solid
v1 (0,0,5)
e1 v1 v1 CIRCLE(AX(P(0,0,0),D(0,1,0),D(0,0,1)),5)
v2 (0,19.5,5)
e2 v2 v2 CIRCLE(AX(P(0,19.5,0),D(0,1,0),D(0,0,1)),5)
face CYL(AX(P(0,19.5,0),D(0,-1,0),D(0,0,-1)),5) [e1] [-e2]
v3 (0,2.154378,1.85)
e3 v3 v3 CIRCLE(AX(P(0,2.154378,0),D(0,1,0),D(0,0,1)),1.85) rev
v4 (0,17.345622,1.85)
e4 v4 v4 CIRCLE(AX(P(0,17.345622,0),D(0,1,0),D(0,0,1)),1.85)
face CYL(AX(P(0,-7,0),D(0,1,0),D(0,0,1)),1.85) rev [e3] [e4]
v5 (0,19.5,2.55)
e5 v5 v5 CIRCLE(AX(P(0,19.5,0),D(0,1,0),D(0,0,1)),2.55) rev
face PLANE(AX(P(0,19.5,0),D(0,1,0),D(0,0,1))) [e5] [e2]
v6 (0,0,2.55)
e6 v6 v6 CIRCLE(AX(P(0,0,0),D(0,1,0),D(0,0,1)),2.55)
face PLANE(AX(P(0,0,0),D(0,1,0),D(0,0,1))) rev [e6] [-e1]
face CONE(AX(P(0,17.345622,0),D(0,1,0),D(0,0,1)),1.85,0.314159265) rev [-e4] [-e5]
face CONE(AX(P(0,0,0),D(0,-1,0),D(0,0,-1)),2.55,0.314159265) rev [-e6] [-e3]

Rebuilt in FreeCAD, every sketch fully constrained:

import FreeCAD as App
import Part
import Sketcher

V = App.Vector
Q = App.Units.Quantity


def edges_at(feature, points):
    """Names of the edges that pass closest to the given points."""
    edges = feature.Shape.Edges
    near = lambda p: min(range(len(edges)), key=lambda i: edges[i].distToShape(Part.Vertex(*p))[0])
    return sorted({f"Edge{near(p) + 1}" for p in points})

doc = App.newDocument("Part")
body = doc.addObject("PartDesign::Body", "Body")

sketch1 = body.newObject("Sketcher::SketchObject", "Sketch")
sketch1.AttachmentSupport = (doc.getObject("XZ_Plane"), [""])
sketch1.MapMode = "FlatFace"
sketch1.addGeometry(Part.Circle(V(0, 0, 0), V(0, 0, 1), 5), False)
sketch1.addConstraint([
    Sketcher.Constraint("Coincident", 0, 3, -1, 1),
    Sketcher.Constraint("Diameter", 0, Q("10 mm")),
])
pad1 = body.newObject("PartDesign::Pad", "Pad")
pad1.Profile = sketch1
pad1.Length = 19.5
pad1.Reversed = True

sketch2 = body.newObject("Sketcher::SketchObject", "Sketch001")
sketch2.AttachmentSupport = (doc.getObject("XZ_Plane"), [""])
sketch2.MapMode = "FlatFace"
sketch2.AttachmentOffset = App.Placement(V(0, 0, -19.5), App.Rotation())
sketch2.addGeometry(Part.Circle(V(0, 0, 0), V(0, 0, 1), 1.9), False)
sketch2.addConstraint([
    Sketcher.Constraint("Coincident", 0, 3, -1, 1),
    Sketcher.Constraint("Diameter", 0, Q("3.7 mm")),
])
pocket1 = body.newObject("PartDesign::Pocket", "Pocket")
pocket1.Profile = sketch2
pocket1.Length = 26.5
pocket1.Reversed = True
doc.recompute()

chamfer = body.newObject("PartDesign::Chamfer", "Chamfer")
chamfer.Base = (pocket1, edges_at(pocket1, [(-1.85, 0, 0)]))
chamfer.ChamferType = "Two distances"
chamfer.Size = 0.7
chamfer.Size2 = 2.154378
doc.recompute()

chamfer2 = body.newObject("PartDesign::Chamfer", "Chamfer001")
chamfer2.Base = (chamfer, edges_at(chamfer, [(-1.85, 19.5, 0)]))
chamfer2.ChamferType = "Two distances"
chamfer2.Size = 0.7
chamfer2.Size2 = 2.154378
chamfer2.FlipDirection = True

doc.recompute()
